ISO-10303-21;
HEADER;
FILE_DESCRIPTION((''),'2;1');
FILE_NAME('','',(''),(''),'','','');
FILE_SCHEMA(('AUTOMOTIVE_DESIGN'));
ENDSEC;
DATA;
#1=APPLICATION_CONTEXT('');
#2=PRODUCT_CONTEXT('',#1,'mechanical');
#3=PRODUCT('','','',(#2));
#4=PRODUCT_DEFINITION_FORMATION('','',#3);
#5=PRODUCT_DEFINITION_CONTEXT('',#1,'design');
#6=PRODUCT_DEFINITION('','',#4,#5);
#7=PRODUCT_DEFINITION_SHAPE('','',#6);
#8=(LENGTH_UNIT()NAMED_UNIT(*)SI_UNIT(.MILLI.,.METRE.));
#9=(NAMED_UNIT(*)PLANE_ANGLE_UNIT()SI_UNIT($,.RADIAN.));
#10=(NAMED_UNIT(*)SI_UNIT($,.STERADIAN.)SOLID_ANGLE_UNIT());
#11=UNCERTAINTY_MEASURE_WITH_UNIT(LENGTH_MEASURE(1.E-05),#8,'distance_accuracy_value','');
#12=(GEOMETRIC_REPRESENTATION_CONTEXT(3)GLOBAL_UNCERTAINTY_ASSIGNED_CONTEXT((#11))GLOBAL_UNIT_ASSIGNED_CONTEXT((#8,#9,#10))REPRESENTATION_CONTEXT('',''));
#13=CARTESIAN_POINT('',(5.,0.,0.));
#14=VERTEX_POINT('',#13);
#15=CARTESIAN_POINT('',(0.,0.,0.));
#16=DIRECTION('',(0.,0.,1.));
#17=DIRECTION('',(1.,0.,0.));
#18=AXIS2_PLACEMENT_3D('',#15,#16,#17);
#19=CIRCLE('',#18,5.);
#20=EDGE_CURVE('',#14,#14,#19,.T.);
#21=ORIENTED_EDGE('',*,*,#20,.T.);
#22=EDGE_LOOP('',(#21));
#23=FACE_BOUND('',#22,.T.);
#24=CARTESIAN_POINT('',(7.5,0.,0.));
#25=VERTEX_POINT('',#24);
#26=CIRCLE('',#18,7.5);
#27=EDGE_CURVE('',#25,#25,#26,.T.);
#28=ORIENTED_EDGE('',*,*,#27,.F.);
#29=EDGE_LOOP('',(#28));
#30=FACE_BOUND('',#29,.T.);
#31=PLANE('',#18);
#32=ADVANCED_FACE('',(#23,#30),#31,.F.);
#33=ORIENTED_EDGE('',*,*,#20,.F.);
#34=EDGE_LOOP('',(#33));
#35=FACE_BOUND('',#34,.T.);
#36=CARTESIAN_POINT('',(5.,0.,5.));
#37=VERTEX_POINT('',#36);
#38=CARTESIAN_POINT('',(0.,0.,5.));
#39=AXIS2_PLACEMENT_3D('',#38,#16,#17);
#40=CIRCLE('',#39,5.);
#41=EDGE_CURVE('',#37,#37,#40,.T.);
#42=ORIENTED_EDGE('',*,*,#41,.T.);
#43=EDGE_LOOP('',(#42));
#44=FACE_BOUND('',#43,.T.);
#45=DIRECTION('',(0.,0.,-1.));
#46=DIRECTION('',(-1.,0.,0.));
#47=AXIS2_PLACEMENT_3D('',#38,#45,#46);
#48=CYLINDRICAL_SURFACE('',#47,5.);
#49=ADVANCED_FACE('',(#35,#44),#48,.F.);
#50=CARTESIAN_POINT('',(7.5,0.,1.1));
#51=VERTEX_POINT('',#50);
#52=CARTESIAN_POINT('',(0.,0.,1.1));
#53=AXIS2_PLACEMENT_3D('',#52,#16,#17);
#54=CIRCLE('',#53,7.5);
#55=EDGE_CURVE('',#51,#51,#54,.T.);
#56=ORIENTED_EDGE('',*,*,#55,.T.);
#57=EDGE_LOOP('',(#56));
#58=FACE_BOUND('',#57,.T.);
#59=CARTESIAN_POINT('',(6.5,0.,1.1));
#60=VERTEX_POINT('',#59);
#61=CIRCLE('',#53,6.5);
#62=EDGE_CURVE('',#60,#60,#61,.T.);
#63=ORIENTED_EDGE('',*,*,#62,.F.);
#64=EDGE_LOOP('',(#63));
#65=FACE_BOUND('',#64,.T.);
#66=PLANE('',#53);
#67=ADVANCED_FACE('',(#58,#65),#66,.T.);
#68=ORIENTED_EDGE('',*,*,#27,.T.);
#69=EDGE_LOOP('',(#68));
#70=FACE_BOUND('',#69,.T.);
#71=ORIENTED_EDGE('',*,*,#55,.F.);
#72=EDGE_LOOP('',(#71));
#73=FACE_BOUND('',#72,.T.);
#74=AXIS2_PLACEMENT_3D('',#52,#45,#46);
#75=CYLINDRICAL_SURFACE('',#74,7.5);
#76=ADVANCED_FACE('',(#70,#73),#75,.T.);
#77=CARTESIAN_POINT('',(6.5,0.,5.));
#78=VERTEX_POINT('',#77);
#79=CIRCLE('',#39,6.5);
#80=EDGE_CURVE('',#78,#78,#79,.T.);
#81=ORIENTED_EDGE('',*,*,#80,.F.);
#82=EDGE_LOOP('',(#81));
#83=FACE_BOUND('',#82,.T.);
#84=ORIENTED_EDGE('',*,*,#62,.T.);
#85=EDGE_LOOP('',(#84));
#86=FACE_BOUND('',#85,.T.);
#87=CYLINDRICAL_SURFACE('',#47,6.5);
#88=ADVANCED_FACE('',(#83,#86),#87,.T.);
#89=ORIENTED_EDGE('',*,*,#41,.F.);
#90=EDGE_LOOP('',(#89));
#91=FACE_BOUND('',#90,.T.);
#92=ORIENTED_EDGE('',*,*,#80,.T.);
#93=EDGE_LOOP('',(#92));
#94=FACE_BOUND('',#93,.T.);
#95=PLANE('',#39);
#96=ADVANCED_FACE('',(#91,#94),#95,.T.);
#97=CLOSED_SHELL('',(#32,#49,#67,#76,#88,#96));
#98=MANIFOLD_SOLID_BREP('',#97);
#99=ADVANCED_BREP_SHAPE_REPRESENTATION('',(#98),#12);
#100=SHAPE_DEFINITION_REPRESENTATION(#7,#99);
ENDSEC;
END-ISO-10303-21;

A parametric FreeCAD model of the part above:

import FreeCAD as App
import Part
import Sketcher
Q = App.Units.Quantity

doc = App.newDocument("Part")
body = doc.addObject("PartDesign::Body", "Body")

sketch1 = body.newObject("Sketcher::SketchObject", "Sketch")
sketch1.AttachmentSupport = (doc.getObject("XY_Plane"), [""])
sketch1.MapMode = "FlatFace"
sketch1.addGeometry(Part.Circle(App.Vector(0, 0, 0), App.Vector(0, 0, 1), 6), False)
sketch1.addGeometry(Part.Circle(App.Vector(0, 0, 0), App.Vector(0, 0, 1), 5), False)
sketch1.addConstraint(Sketcher.Constraint("Coincident", 0, 3, -1, 1))
sketch1.addConstraint(Sketcher.Constraint("Coincident", 1, 3, -1, 1))
sketch1.addConstraint(Sketcher.Constraint("Diameter", 0, Q("13 mm")))
sketch1.addConstraint(Sketcher.Constraint("Diameter", 1, Q("10 mm")))
pad1 = body.newObject("PartDesign::Pad", "Pad")
pad1.Profile = sketch1
pad1.Length = 5

sketch2 = body.newObject("Sketcher::SketchObject", "Sketch001")
sketch2.AttachmentSupport = (doc.getObject("XY_Plane"), [""])
sketch2.MapMode = "FlatFace"
sketch2.addGeometry(Part.Circle(App.Vector(0, 0, 0), App.Vector(0, 0, 1), 8), False)
sketch2.addGeometry(Part.Circle(App.Vector(0, 0, 0), App.Vector(0, 0, 1), 6), False)
sketch2.addConstraint(Sketcher.Constraint("Coincident", 0, 3, -1, 1))
sketch2.addConstraint(Sketcher.Constraint("Coincident", 1, 3, -1, 1))
sketch2.addConstraint(Sketcher.Constraint("Diameter", 0, Q("15 mm")))
sketch2.addConstraint(Sketcher.Constraint("Diameter", 1, Q("13 mm")))
pad2 = body.newObject("PartDesign::Pad", "Pad001")
pad2.Profile = sketch2
pad2.Length = 1.1

doc.recompute()
